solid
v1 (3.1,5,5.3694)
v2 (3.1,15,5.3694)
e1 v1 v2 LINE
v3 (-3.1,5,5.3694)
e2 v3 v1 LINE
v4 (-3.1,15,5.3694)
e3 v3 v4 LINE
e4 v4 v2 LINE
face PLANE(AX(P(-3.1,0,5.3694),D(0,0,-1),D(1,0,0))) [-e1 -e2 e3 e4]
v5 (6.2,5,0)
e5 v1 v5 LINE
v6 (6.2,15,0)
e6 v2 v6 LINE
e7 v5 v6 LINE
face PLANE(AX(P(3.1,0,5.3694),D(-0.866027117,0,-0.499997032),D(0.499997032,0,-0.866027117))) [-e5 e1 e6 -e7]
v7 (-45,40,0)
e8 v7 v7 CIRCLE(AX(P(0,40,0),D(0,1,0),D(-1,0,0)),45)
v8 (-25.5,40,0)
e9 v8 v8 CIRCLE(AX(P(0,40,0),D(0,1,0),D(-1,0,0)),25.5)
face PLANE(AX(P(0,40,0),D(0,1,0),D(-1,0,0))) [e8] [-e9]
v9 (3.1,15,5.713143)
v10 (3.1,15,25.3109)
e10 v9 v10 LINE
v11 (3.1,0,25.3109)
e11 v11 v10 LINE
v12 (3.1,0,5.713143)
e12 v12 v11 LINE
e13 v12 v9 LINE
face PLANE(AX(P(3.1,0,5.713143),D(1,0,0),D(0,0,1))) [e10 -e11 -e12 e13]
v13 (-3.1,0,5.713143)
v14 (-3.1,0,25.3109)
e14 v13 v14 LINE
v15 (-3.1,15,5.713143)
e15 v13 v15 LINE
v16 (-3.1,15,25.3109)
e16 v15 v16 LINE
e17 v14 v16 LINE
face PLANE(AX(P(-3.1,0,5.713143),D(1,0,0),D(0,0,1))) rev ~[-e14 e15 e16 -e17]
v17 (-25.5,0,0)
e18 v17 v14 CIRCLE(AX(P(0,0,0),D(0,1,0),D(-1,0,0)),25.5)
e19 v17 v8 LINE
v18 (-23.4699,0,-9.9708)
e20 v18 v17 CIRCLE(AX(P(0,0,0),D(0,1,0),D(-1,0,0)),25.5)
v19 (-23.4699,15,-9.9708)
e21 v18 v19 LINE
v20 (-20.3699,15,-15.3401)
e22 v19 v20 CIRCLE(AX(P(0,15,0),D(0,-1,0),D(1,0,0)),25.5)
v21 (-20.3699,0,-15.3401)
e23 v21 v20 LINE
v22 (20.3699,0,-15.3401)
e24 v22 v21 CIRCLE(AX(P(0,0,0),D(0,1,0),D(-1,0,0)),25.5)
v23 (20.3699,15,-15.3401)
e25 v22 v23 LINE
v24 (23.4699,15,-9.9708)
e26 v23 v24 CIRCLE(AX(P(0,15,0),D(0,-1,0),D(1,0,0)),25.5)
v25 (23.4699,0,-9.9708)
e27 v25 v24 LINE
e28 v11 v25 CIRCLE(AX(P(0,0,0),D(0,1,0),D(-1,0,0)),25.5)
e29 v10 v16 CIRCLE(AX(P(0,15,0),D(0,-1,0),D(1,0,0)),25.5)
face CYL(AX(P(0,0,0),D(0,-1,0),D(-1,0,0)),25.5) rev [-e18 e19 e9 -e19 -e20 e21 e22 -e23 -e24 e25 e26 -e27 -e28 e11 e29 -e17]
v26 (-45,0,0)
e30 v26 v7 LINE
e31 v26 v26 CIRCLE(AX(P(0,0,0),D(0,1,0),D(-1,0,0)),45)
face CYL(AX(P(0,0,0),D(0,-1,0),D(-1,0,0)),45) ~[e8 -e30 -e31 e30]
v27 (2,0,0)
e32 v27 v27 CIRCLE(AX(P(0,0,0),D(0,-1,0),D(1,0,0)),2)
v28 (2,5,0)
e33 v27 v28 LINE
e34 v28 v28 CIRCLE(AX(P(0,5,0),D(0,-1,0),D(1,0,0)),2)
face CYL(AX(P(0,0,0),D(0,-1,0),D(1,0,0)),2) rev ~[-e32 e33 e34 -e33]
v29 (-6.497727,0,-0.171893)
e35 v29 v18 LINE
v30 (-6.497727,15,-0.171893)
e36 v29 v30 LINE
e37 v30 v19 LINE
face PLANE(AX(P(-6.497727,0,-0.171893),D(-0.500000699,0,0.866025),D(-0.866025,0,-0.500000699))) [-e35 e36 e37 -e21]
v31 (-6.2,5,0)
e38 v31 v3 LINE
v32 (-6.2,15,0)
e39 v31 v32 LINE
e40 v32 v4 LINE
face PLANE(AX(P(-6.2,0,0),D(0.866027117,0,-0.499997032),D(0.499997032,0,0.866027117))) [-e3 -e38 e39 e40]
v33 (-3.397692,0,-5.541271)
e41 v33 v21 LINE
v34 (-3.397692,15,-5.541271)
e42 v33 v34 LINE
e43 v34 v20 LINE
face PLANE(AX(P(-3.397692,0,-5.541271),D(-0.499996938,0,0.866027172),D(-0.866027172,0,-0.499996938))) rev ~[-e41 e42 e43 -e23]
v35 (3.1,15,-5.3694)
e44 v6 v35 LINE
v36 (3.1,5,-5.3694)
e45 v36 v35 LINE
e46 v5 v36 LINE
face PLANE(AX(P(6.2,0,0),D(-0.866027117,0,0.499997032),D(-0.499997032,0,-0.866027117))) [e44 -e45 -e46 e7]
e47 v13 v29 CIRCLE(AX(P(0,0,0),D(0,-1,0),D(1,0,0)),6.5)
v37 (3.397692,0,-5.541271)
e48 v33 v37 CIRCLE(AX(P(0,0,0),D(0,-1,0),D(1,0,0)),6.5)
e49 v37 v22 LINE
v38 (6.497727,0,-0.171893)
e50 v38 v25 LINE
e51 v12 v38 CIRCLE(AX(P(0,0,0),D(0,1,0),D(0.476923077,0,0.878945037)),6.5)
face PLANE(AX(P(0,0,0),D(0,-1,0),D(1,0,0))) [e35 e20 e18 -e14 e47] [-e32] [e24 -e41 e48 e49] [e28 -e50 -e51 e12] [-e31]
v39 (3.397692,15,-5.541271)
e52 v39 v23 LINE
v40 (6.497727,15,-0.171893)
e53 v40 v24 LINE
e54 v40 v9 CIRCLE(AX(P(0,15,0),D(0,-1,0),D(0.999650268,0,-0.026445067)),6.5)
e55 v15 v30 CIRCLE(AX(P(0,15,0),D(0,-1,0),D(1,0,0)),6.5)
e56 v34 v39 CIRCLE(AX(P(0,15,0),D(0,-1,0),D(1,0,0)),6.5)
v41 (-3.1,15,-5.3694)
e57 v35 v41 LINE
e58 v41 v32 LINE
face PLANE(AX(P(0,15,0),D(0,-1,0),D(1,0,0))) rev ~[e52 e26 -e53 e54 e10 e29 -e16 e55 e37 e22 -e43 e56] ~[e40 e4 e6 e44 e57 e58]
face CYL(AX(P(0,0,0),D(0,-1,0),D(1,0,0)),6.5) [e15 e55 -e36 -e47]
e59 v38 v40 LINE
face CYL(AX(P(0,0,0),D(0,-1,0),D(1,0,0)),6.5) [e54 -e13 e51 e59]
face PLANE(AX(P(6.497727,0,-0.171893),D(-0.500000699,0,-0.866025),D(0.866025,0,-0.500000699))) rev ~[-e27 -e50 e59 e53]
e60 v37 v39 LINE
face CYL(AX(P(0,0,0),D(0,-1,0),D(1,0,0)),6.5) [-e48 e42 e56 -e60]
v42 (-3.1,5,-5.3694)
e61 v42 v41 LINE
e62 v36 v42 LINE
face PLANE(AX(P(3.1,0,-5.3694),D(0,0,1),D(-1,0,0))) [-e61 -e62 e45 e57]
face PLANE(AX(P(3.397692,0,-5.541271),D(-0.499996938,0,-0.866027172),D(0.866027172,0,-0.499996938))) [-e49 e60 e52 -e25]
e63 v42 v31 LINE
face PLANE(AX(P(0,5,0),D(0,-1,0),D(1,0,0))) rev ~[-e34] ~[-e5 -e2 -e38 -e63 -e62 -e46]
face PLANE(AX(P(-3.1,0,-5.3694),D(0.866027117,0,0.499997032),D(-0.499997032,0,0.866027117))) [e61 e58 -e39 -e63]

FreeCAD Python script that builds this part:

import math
import FreeCAD as App
import Part
import Sketcher

V = App.Vector
Q = App.Units.Quantity


def add_polygon(sketch, points):
    """Adds a closed chain of lines whose ends are joined by coincident constraints."""
    first, n = sketch.GeometryCount, len(points)
    for a, b in zip(points, points[1:] + points[:1]):
        sketch.addGeometry(Part.LineSegment(App.Vector(*a, 0), App.Vector(*b, 0)), False)
    for i in range(n):
        sketch.addConstraint(Sketcher.Constraint("Coincident", first + i, 2, first + (i + 1) % n, 1))

doc = App.newDocument("Part")
body = doc.addObject("PartDesign::Body", "Body")

# Sketch on XZ plane
sketch1 = body.newObject("Sketcher::SketchObject", "Sketch")
sketch1.AttachmentSupport = (doc.getObject("XZ_Plane"), [""])
sketch1.MapMode = "FlatFace"
sketch1.addGeometry([
    Part.Circle(V(0, 0, 0), V(0, 0, 1), 45),
    Part.Circle(V(0, 0, 0), V(0, 0, 1), 25.5),
], False)
sketch1.addConstraint([
    Sketcher.Constraint("Coincident", 0, 3, -1, 1),
    Sketcher.Constraint("Coincident", 1, 3, -1, 1),
    Sketcher.Constraint("Diameter", 0, Q("90 mm")),
    Sketcher.Constraint("Diameter", 1, Q("51 mm")),
])
pad1 = body.newObject("PartDesign::Pad", "Pad")
pad1.Profile = sketch1
pad1.Length = 40
pad1.Reversed = True

# Sketch on XZ plane
sketch2 = body.newObject("Sketcher::SketchObject", "Sketch001")
sketch2.AttachmentSupport = (doc.getObject("XZ_Plane"), [""])
sketch2.MapMode = "FlatFace"
sketch2.addGeometry(Part.LineSegment(V(3.1, 5.713143, 0), V(3.1, 25.3109, 0)), False)  # 0
sketch2.addGeometry(Part.ArcOfCircle(Part.Circle(V(0, 0, 0), V(0, 0, 1), 25.5), math.radians(83.017368), math.radians(96.982632)), False)  # 1
sketch2.addGeometry(Part.LineSegment(V(-3.1, 25.3109, 0), V(-3.1, 5.713143, 0)), False)  # 2
sketch2.addGeometry(Part.ArcOfCircle(Part.Circle(V(0, 0, 0), V(0, 0, 1), 6.5), math.radians(118.484635), math.radians(181.515367)), False)  # 3
sketch2.addGeometry(Part.LineSegment(V(-6.497727, -0.171893, 0), V(-23.4699, -9.9708, 0)), False)  # 4
sketch2.addGeometry(Part.ArcOfCircle(Part.Circle(V(0, 0, 0), V(0, 0, 1), 25.5), math.radians(-156.982588), math.radians(-143.017443)), False)  # 5
sketch2.addGeometry(Part.LineSegment(V(-20.3699, -15.3401, 0), V(-3.397692, -5.541271, 0)), False)  # 6
sketch2.addGeometry(Part.ArcOfCircle(Part.Circle(V(0, 0, 0), V(0, 0, 1), 6.5), math.radians(-121.515008), math.radians(-58.484992)), False)  # 7
sketch2.addGeometry(Part.LineSegment(V(3.397692, -5.541271, 0), V(20.3699, -15.3401, 0)), False)  # 8
sketch2.addGeometry(Part.ArcOfCircle(Part.Circle(V(0, 0, 0), V(0, 0, 1), 25.5), math.radians(-36.982557), math.radians(-23.017412)), False)  # 9
sketch2.addGeometry(Part.LineSegment(V(23.4699, -9.9708, 0), V(6.497727, -0.171893, 0)), False)  # 10
sketch2.addGeometry(Part.ArcOfCircle(Part.Circle(V(0, 0, 0), V(0, 0, 1), 6.5), math.radians(-1.515367), math.radians(61.515365)), False)  # 11
add_polygon(sketch2, [(-3.1, 5.3694), (3.1, 5.3694), (6.2, 0), (3.1, -5.3694), (-3.1, -5.3694), (-6.2, 0)])  # lines 12-17
sketch2.addConstraint([
    Sketcher.Constraint("Coincident", 0, 2, 1, 1),
    Sketcher.Constraint("Coincident", 1, 2, 2, 1),
    Sketcher.Constraint("Coincident", 2, 2, 3, 1),
    Sketcher.Constraint("Coincident", 3, 2, 4, 1),
    Sketcher.Constraint("Coincident", 4, 2, 5, 1),
    Sketcher.Constraint("Coincident", 5, 2, 6, 1),
    Sketcher.Constraint("Coincident", 6, 2, 7, 1),
    Sketcher.Constraint("Coincident", 7, 2, 8, 1),
    Sketcher.Constraint("Coincident", 8, 2, 9, 1),
    Sketcher.Constraint("Coincident", 9, 2, 10, 1),
    Sketcher.Constraint("Coincident", 10, 2, 11, 1),
    Sketcher.Constraint("Coincident", 11, 2, 0, 1),
    Sketcher.Constraint("Vertical", 0),
    Sketcher.Constraint("Vertical", 2),
    Sketcher.Constraint("Horizontal", 12),
    Sketcher.Constraint("Horizontal", 15),
    Sketcher.Constraint("Coincident", 1, 3, -1, 1),
    Sketcher.Constraint("Coincident", 3, 3, -1, 1),
    Sketcher.Constraint("Coincident", 5, 3, -1, 1),
    Sketcher.Constraint("Coincident", 7, 3, -1, 1),
    Sketcher.Constraint("Coincident", 9, 3, -1, 1),
    Sketcher.Constraint("Coincident", 11, 3, -1, 1),
    Sketcher.Constraint("Equal", 1, 5),
    Sketcher.Constraint("Equal", 3, 7),
    Sketcher.Constraint("Equal", 5, 9),
    Sketcher.Constraint("Equal", 7, 11),
    Sketcher.Constraint("Symmetric", 12, 2, 15, 2, -1, 1),
    Sketcher.Constraint("Symmetric", 13, 2, 16, 2, -1, 1),
    Sketcher.Constraint("PointOnObject", 13, 2, -1),
    Sketcher.Constraint("Parallel", 4, 6),
    Sketcher.Constraint("Parallel", 8, 10),
    Sketcher.Constraint("Perpendicular", 6, 13),
    Sketcher.Constraint("Perpendicular", 10, 14),
    Sketcher.Constraint("Parallel", 14, 17),
    Sketcher.Constraint("Horizontal", 0, 2, 1, 2),
    Sketcher.Constraint("Horizontal", 6, 2, 7, 2),
    Sketcher.Constraint("Horizontal", 5, 2, 8, 2),
    Sketcher.Constraint("Horizontal", 4, 2, 9, 2),
    Sketcher.Constraint("Vertical", 11, 2, 12, 2),
    Sketcher.Constraint("Equal", 4, 6),
    Sketcher.Constraint("Radius", 3, Q("6.5 mm")),
    Sketcher.Constraint("DistanceX", 12, 1, 12, 2, Q("6.2 mm")),
    Sketcher.Constraint("Distance", 13, Q("6.2 mm")),
    Sketcher.Constraint("DistanceX", -1, 1, 13, 2, Q("6.2 mm")),
    Sketcher.Constraint("Radius", 1, Q("25.5 mm")),
    Sketcher.Constraint("DistanceX", 4, 2, 5, 2, Q("3.1 mm")),
])
pad2 = body.newObject("PartDesign::Pad", "Pad001")
pad2.Profile = sketch2
pad2.Length = 15
pad2.Reversed = True

# Sketch on XZ plane
sketch3 = body.newObject("Sketcher::SketchObject", "Sketch002")
sketch3.AttachmentSupport = (doc.getObject("XZ_Plane"), [""])
sketch3.MapMode = "FlatFace"
add_polygon(sketch3, [(-3.1, -5.3694), (3.1, -5.3694), (6.2, 0), (3.1, 5.3694), (-3.1, 5.3694), (-6.2, 0)])  # lines 0-5
sketch3.addGeometry(Part.Circle(V(0, 0, 0), V(0, 0, 1), 2), False)  # 6
sketch3.addConstraint([
    Sketcher.Constraint("Horizontal", 0),
    Sketcher.Constraint("Horizontal", 3),
    Sketcher.Constraint("Coincident", 6, 3, -1, 1),
    Sketcher.Constraint("Symmetric", 0, 2, 3, 2, -1, 1),
    Sketcher.Constraint("Symmetric", 1, 2, 4, 2, -1, 1),
    Sketcher.Constraint("PointOnObject", 1, 2, -1),
    Sketcher.Constraint("Parallel", 2, 5),
    Sketcher.Constraint("Vertical", 0, 2, 2, 2),
    Sketcher.Constraint("Diameter", 6, Q("4 mm")),
    Sketcher.Constraint("Angle", 1, Q("60.0002 deg")),
    Sketcher.Constraint("DistanceX", 0, 1, 0, 2, Q("6.2 mm")),
    Sketcher.Constraint("Distance", 1, Q("6.2 mm")),
])
pad3 = body.newObject("PartDesign::Pad", "Pad002")
pad3.Profile = sketch3
pad3.Length = 5
pad3.Reversed = True

doc.recompute()
